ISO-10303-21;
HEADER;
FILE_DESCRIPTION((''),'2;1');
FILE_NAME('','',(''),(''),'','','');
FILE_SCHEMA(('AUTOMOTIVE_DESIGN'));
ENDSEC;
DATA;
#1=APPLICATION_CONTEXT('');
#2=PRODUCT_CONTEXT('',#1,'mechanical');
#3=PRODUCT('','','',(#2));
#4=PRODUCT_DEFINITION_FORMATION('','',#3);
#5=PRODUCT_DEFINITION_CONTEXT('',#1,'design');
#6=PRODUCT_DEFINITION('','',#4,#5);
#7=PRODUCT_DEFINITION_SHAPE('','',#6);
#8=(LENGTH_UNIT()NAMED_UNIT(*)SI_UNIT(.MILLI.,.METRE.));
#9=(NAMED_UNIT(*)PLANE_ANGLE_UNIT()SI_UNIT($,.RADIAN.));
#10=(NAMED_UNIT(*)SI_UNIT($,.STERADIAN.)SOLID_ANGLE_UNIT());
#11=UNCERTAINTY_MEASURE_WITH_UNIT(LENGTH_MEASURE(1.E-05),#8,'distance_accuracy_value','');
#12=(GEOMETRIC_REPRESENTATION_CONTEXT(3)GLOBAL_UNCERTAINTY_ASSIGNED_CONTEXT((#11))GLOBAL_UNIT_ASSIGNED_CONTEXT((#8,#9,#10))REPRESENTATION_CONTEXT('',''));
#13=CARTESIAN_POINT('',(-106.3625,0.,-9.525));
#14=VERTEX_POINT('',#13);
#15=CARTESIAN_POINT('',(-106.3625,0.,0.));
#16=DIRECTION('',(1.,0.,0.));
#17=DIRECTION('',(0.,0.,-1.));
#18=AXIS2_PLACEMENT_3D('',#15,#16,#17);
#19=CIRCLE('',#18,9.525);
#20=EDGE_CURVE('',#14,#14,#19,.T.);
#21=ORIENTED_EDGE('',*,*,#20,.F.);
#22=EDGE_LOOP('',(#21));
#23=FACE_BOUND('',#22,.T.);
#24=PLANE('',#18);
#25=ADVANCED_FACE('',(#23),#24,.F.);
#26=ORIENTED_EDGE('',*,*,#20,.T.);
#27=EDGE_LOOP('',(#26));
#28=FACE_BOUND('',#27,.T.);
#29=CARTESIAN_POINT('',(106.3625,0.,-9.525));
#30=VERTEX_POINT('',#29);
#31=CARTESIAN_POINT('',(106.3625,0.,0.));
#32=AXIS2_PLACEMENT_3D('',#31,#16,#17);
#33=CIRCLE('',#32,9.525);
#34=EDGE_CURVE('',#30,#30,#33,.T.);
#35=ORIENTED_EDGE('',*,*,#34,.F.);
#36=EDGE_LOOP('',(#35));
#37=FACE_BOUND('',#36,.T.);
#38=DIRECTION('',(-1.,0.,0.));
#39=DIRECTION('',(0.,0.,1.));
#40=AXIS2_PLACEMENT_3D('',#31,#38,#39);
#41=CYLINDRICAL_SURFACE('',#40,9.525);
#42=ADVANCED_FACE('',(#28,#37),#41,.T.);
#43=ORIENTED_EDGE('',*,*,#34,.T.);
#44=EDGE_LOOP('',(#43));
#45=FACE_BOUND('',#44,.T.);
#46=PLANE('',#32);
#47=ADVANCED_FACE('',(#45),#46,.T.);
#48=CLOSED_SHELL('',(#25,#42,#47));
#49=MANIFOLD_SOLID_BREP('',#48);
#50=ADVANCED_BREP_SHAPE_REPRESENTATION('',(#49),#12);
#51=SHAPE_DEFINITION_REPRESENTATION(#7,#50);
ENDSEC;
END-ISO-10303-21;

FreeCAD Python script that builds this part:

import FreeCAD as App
import Part
import Sketcher
from FreeCAD import Vector
Q = App.Units.Quantity

doc = App.newDocument("Part")
params = doc.addObject("Spreadsheet::Sheet", "Params")
for row, (alias, value) in enumerate([
    ("sketch1_diameter", "0.75 in"),
    ("pad1_length", "8.375 in"),
], start=1):
    params.set(f"A{row}", alias)
    params.set(f"B{row}", "=" + value)
    params.setAlias(f"B{row}", alias)

body = doc.addObject("PartDesign::Body", "Body")

# Sketch on YZ plane
sketch1 = doc.addObject("Sketcher::SketchObject", "Sketch")
body.addObject(sketch1)
sketch1.AttachmentSupport = (doc.YZ_Plane, [""])
sketch1.MapMode = "FlatFace"
sketch1.addGeometry(Part.Circle(Vector(0, 0, 0), Vector(0, 0, 1), 10), False)
sketch1.addConstraint([
    Sketcher.Constraint("Coincident", 0, 3, -1, 1),
    Sketcher.Constraint("Diameter", 0, Q("0.75 in")),
])
sketch1.setExpression("Constraints[1]", "Params.sketch1_diameter")
pad1 = doc.addObject("PartDesign::Pad", "Pad")
body.addObject(pad1)
pad1.Profile = sketch1
pad1.setExpression("Length", "Params.pad1_length")
pad1.Midplane = True

doc.recompute()
